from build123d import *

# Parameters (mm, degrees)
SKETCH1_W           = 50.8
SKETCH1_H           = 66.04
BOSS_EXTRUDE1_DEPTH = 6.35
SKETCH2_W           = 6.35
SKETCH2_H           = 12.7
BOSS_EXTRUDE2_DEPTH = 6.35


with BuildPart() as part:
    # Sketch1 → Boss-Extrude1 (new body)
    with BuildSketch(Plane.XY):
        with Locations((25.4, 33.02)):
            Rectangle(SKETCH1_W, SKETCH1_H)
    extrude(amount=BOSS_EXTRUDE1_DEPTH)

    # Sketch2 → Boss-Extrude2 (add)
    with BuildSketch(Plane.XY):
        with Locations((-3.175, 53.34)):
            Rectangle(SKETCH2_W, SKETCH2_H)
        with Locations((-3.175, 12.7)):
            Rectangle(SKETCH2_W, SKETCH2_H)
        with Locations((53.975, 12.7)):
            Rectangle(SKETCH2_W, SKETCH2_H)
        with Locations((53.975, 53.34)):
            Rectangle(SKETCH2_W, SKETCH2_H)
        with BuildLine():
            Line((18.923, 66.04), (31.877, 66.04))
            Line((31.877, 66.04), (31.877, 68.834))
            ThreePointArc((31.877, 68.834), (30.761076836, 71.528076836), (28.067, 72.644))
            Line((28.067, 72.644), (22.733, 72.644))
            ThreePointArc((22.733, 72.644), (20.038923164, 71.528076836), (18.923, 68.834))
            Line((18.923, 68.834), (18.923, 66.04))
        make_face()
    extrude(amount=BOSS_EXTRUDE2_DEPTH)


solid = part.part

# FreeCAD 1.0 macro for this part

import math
import FreeCAD as App
import Part
import Sketcher
from FreeCAD import Vector
Q = App.Units.Quantity

doc = App.newDocument("Part")
body = doc.addObject("PartDesign::Body", "Body")

# Sketch on XY plane
sketch1 = body.newObject("Sketcher::SketchObject", "Sketch")
sketch1.AttachmentSupport = (doc.getObject("XY_Plane"), [""])
sketch1.MapMode = "FlatFace"
sketch1.addGeometry(Part.LineSegment(Vector(0, 66.04, 0), Vector(0, 0, 0)), False)
sketch1.addGeometry(Part.LineSegment(Vector(0, 0, 0), Vector(50.8, 0, 0)), False)
sketch1.addGeometry(Part.LineSegment(Vector(50.8, 0, 0), Vector(50.8, 66.04, 0)), False)
sketch1.addGeometry(Part.LineSegment(Vector(50.8, 66.04, 0), Vector(0, 66.04, 0)), False)
sketch1.addConstraint(Sketcher.Constraint("Coincident", 0, 2, 1, 1))
sketch1.addConstraint(Sketcher.Constraint("Coincident", 1, 2, 2, 1))
sketch1.addConstraint(Sketcher.Constraint("Coincident", 2, 2, 3, 1))
sketch1.addConstraint(Sketcher.Constraint("Coincident", 3, 2, 0, 1))
sketch1.addConstraint(Sketcher.Constraint("Vertical", 0))
sketch1.addConstraint(Sketcher.Constraint("Horizontal", 1))
sketch1.addConstraint(Sketcher.Constraint("Vertical", 2))
sketch1.addConstraint(Sketcher.Constraint("Horizontal", 3))
sketch1.addConstraint(Sketcher.Constraint("Coincident", 0, 2, -1, 1))
sketch1.addConstraint(Sketcher.Constraint("DistanceX", 1, 1, 1, 2, Q("2 in")))
sketch1.addConstraint(Sketcher.Constraint("DistanceY", 0, 2, 0, 1, Q("2.6 in")))
pad1 = body.newObject("PartDesign::Pad", "Pad")
pad1.Profile = sketch1
pad1.Length = Q("0.25 in")

# Sketch on XY plane
sketch2 = body.newObject("Sketcher::SketchObject", "Sketch001")
sketch2.AttachmentSupport = (doc.getObject("XY_Plane"), [""])
sketch2.MapMode = "FlatFace"
sketch2.addGeometry(Part.LineSegment(Vector(-6.35, 59.69, 0), Vector(-6.35, 46.99, 0)), False)
sketch2.addGeometry(Part.LineSegment(Vector(-6.35, 46.99, 0), Vector(0, 46.99, 0)), False)
sketch2.addGeometry(Part.LineSegment(Vector(0, 46.99, 0), Vector(0, 59.69, 0)), False)
sketch2.addGeometry(Part.LineSegment(Vector(0, 59.69, 0), Vector(-6.35, 59.69, 0)), False)
sketch2.addGeometry(Part.LineSegment(Vector(-6.35, 19.05, 0), Vector(-6.35, 6.35, 0)), False)
sketch2.addGeometry(Part.LineSegment(Vector(-6.35, 6.35, 0), Vector(0, 6.35, 0)), False)
sketch2.addGeometry(Part.LineSegment(Vector(0, 6.35, 0), Vector(0, 19.05, 0)), False)
sketch2.addGeometry(Part.LineSegment(Vector(0, 19.05, 0), Vector(-6.35, 19.05, 0)), False)
sketch2.addGeometry(Part.LineSegment(Vector(50.8, 19.05, 0), Vector(50.8, 6.35, 0)), False)
sketch2.addGeometry(Part.LineSegment(Vector(50.8, 6.35, 0), Vector(57.15, 6.35, 0)), False)
sketch2.addGeometry(Part.LineSegment(Vector(57.15, 6.35, 0), Vector(57.15, 19.05, 0)), False)
sketch2.addGeometry(Part.LineSegment(Vector(57.15, 19.05, 0), Vector(50.8, 19.05, 0)), False)
sketch2.addGeometry(Part.LineSegment(Vector(50.8, 59.69, 0), Vector(50.8, 46.99, 0)), False)
sketch2.addGeometry(Part.LineSegment(Vector(50.8, 46.99, 0), Vector(57.15, 46.99, 0)), False)
sketch2.addGeometry(Part.LineSegment(Vector(57.15, 46.99, 0), Vector(57.15, 59.69, 0)), False)
sketch2.addGeometry(Part.LineSegment(Vector(57.15, 59.69, 0), Vector(50.8, 59.69, 0)), False)
sketch2.addGeometry(Part.LineSegment(Vector(18.923, 66.04, 0), Vector(31.877, 66.04, 0)), False)
sketch2.addGeometry(Part.LineSegment(Vector(31.877, 66.04, 0), Vector(31.877, 68.834, 0)), False)
sketch2.addGeometry(Part.ArcOfCircle(Part.Circle(Vector(28.067, 68.834, 0), Vector(0, 0, 1), 3.81), math.radians(0), math.radians(90)), False)
sketch2.addGeometry(Part.LineSegment(Vector(28.067, 72.644, 0), Vector(22.733, 72.644, 0)), False)
sketch2.addGeometry(Part.ArcOfCircle(Part.Circle(Vector(22.733, 68.834, 0), Vector(0, 0, 1), 3.81), math.radians(90), math.radians(180)), False)
sketch2.addGeometry(Part.LineSegment(Vector(18.923, 68.834, 0), Vector(18.923, 66.04, 0)), False)
sketch2.addConstraint(Sketcher.Constraint("Coincident", 0, 2, 1, 1))
sketch2.addConstraint(Sketcher.Constraint("Coincident", 1, 2, 2, 1))
sketch2.addConstraint(Sketcher.Constraint("Coincident", 2, 2, 3, 1))
sketch2.addConstraint(Sketcher.Constraint("Coincident", 3, 2, 0, 1))
sketch2.addConstraint(Sketcher.Constraint("Coincident", 4, 2, 5, 1))
sketch2.addConstraint(Sketcher.Constraint("Coincident", 5, 2, 6, 1))
sketch2.addConstraint(Sketcher.Constraint("Coincident", 6, 2, 7, 1))
sketch2.addConstraint(Sketcher.Constraint("Coincident", 7, 2, 4, 1))
sketch2.addConstraint(Sketcher.Constraint("Coincident", 8, 2, 9, 1))
sketch2.addConstraint(Sketcher.Constraint("Coincident", 9, 2, 10, 1))
sketch2.addConstraint(Sketcher.Constraint("Coincident", 10, 2, 11, 1))
sketch2.addConstraint(Sketcher.Constraint("Coincident", 11, 2, 8, 1))
sketch2.addConstraint(Sketcher.Constraint("Coincident", 12, 2, 13, 1))
sketch2.addConstraint(Sketcher.Constraint("Coincident", 13, 2, 14, 1))
sketch2.addConstraint(Sketcher.Constraint("Coincident", 14, 2, 15, 1))
sketch2.addConstraint(Sketcher.Constraint("Coincident", 15, 2, 12, 1))
sketch2.addConstraint(Sketcher.Constraint("Coincident", 16, 2, 17, 1))
sketch2.addConstraint(Sketcher.Constraint("Tangent", 17, 2, 18, 1))
sketch2.addConstraint(Sketcher.Constraint("Tangent", 18, 2, 19, 1))
sketch2.addConstraint(Sketcher.Constraint("Tangent", 19, 2, 20, 1))
sketch2.addConstraint(Sketcher.Constraint("Tangent", 20, 2, 21, 1))
sketch2.addConstraint(Sketcher.Constraint("Coincident", 21, 2, 16, 1))
sketch2.addConstraint(Sketcher.Constraint("Vertical", 0))
sketch2.addConstraint(Sketcher.Constraint("Horizontal", 1))
sketch2.addConstraint(Sketcher.Constraint("Vertical", 2))
sketch2.addConstraint(Sketcher.Constraint("Horizontal", 3))
sketch2.addConstraint(Sketcher.Constraint("Vertical", 4))
sketch2.addConstraint(Sketcher.Constraint("Horizontal", 5))
sketch2.addConstraint(Sketcher.Constraint("Vertical", 6))
sketch2.addConstraint(Sketcher.Constraint("Horizontal", 7))
sketch2.addConstraint(Sketcher.Constraint("Vertical", 8))
sketch2.addConstraint(Sketcher.Constraint("Horizontal", 9))
sketch2.addConstraint(Sketcher.Constraint("Vertical", 10))
sketch2.addConstraint(Sketcher.Constraint("Horizontal", 11))
sketch2.addConstraint(Sketcher.Constraint("Vertical", 12))
sketch2.addConstraint(Sketcher.Constraint("Horizontal", 13))
sketch2.addConstraint(Sketcher.Constraint("Vertical", 14))
sketch2.addConstraint(Sketcher.Constraint("Horizontal", 15))
sketch2.addConstraint(Sketcher.Constraint("Horizontal", 16))
sketch2.addConstraint(Sketcher.Constraint("Vertical", 17))
sketch2.addConstraint(Sketcher.Constraint("Horizontal", 19))
sketch2.addConstraint(Sketcher.Constraint("Vertical", 21))
sketch2.addConstraint(Sketcher.Constraint("Equal", 18, 20))
sketch2.addConstraint(Sketcher.Constraint("PointOnObject", 1, 2, -2))
sketch2.addConstraint(Sketcher.Constraint("PointOnObject", 5, 2, -2))
sketch2.addConstraint(Sketcher.Constraint("Horizontal", 5, 2, 8, 2))
sketch2.addConstraint(Sketcher.Constraint("Horizontal", 7, 2, 10, 2))
sketch2.addConstraint(Sketcher.Constraint("Horizontal", 1, 2, 12, 2))
sketch2.addConstraint(Sketcher.Constraint("Horizontal", 3, 2, 14, 2))
sketch2.addConstraint(Sketcher.Constraint("Vertical", 3, 2, 4, 2))
sketch2.addConstraint(Sketcher.Constraint("Vertical", 11, 2, 12, 2))
sketch2.addConstraint(Sketcher.Constraint("Vertical", 10, 2, 13, 2))
sketch2.addConstraint(Sketcher.Constraint("Equal", 7, 9))
sketch2.addConstraint(Sketcher.Constraint("Equal", 2, 4))
sketch2.addConstraint(Sketcher.Constraint("Radius", 18, Q("0.15 in")))
sketch2.addConstraint(Sketcher.Constraint("DistanceY", 0, 2, 0, 1, Q("0.5 in")))
sketch2.addConstraint(Sketcher.Constraint("DistanceX", -1, 1, 8, 2, Q("2 in")))
sketch2.addConstraint(Sketcher.Constraint("DistanceX", 1, 1, 1, 2, Q("0.25 in")))
sketch2.addConstraint(Sketcher.Constraint("DistanceX", 16, 1, 16, 2, Q("0.51 in")))
sketch2.addConstraint(Sketcher.Constraint("DistanceY", 17, 1, 17, 2, Q("0.11 in")))
sketch2.addConstraint(Sketcher.Constraint("DistanceY", -1, 1, 16, 2, Q("2.6 in")))
sketch2.addConstraint(Sketcher.Constraint("DistanceY", 4, 2, 0, 2, Q("1.6 in")))
sketch2.addConstraint(Sketcher.Constraint("DistanceY", -1, 1, 0, 2, Q("1.85 in")))
sketch2.addConstraint(Sketcher.Constraint("DistanceX", -1, 1, 18, 3, Q("1.105 in")))
pad2 = body.newObject("PartDesign::Pad", "Pad001")
pad2.Profile = sketch2
pad2.Length = Q("0.25 in")

doc.recompute()
